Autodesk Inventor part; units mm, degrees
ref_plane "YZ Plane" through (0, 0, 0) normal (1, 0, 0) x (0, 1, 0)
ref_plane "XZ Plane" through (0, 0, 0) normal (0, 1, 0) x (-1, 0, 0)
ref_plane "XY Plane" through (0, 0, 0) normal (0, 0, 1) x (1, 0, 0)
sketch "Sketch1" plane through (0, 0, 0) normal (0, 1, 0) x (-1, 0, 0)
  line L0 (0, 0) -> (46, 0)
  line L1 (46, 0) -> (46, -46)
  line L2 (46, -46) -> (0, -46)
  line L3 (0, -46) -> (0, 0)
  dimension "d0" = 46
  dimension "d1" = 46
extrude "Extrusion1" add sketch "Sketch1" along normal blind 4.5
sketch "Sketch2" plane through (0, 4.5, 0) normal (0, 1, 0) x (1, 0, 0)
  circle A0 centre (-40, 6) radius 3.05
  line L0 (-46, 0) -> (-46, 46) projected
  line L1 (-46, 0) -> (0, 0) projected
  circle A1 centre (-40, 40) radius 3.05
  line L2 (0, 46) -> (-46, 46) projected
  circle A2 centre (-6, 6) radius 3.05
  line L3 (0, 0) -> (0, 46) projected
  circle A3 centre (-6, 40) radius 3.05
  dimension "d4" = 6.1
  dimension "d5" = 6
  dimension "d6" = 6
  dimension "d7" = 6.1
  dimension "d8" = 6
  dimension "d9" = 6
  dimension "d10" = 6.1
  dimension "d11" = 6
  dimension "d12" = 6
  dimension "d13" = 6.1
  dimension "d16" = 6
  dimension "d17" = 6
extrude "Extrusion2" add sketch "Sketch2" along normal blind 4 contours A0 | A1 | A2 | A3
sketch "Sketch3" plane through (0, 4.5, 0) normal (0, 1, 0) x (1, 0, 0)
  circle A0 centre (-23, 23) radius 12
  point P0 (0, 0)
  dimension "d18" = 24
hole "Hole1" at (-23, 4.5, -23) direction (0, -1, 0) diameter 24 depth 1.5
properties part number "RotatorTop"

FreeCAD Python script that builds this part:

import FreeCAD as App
import Part
import Sketcher
from FreeCAD import Vector


def add_polygon(sketch, points):
    """Adds a closed chain of lines whose ends are joined by coincident constraints."""
    first, n = sketch.GeometryCount, len(points)
    for a, b in zip(points, points[1:] + points[:1]):
        sketch.addGeometry(Part.LineSegment(App.Vector(*a, 0), App.Vector(*b, 0)), False)
    for i in range(n):
        sketch.addConstraint(Sketcher.Constraint("Coincident", first + i, 2, first + (i + 1) % n, 1))

doc = App.newDocument("Part")
body = doc.addObject("PartDesign::Body", "Body")

# Sketch on XZ plane
sketch1 = body.newObject("Sketcher::SketchObject", "Sketch")
sketch1.AttachmentSupport = (doc.getObject("XZ_Plane"), [""])
sketch1.MapMode = "FlatFace"
add_polygon(sketch1, [(-46, 0), (0, 0), (0, -46), (-46, -46)])  # lines 0-3
sketch1.addConstraint([
    Sketcher.Constraint("Horizontal", 0),
    Sketcher.Constraint("Vertical", 1),
    Sketcher.Constraint("Horizontal", 2),
    Sketcher.Constraint("Vertical", 3),
    Sketcher.Constraint("Coincident", 0, 2, -1, 1),
    Sketcher.Constraint("Equal", 2, 1),
    Sketcher.Constraint("DistanceX", 0, 1, 0, 2, 46.0),
])
pad1 = body.newObject("PartDesign::Pad", "Pad")
pad1.Profile = sketch1
pad1.Length = 4.5
pad1.Reversed = True

# Sketch on XZ plane
sketch2 = body.newObject("Sketcher::SketchObject", "Sketch001")
sketch2.AttachmentSupport = (doc.getObject("XZ_Plane"), [""])
sketch2.MapMode = "FlatFace"
sketch2.AttachmentOffset = App.Placement(Vector(0, 0, -4.5), App.Rotation())
sketch2.addGeometry([
    Part.Circle(Vector(-40, -6, 0), Vector(0, 0, 1), 3),
    Part.Circle(Vector(-40, -40, 0), Vector(0, 0, 1), 3),
    Part.Circle(Vector(-6, -6, 0), Vector(0, 0, 1), 3),
    Part.Circle(Vector(-6, -40, 0), Vector(0, 0, 1), 3),
], False)
sketch2.addConstraint([
    Sketcher.Constraint("Equal", 0, 1),
    Sketcher.Constraint("Equal", 1, 2),
    Sketcher.Constraint("Equal", 2, 3),
    Sketcher.Constraint("Horizontal", 0, 3, 2, 3),
    Sketcher.Constraint("Horizontal", 1, 3, 3, 3),
    Sketcher.Constraint("Vertical", 0, 3, 1, 3),
    Sketcher.Constraint("Vertical", 2, 3, 3, 3),
    Sketcher.Constraint("Diameter", 0, 6.1),
    Sketcher.Constraint("DistanceY", 0, 3, -1, 1, 6.0),
    Sketcher.Constraint("DistanceX", 2, 3, -1, 1, 6.0),
    Sketcher.Constraint("DistanceX", 0, 3, -1, 1, 40.0),
    Sketcher.Constraint("DistanceY", 1, 3, -1, 1, 40.0),
])
pad2 = body.newObject("PartDesign::Pad", "Pad001")
pad2.Profile = sketch2
pad2.Length = 4
pad2.Reversed = True

# Sketch on XZ plane
sketch3 = body.newObject("Sketcher::SketchObject", "Sketch002")
sketch3.AttachmentSupport = (doc.getObject("XZ_Plane"), [""])
sketch3.MapMode = "FlatFace"
sketch3.AttachmentOffset = App.Placement(Vector(0, 0, -4.5), App.Rotation())
sketch3.addGeometry(Part.Circle(Vector(-23, -23, 0), Vector(0, 0, 1), 12), False)
sketch3.addConstraint([
    Sketcher.Constraint("Diameter", 0, 24.0),
    Sketcher.Constraint("DistanceX", 0, 3, -1, 1, 23.0),
    Sketcher.Constraint("DistanceY", 0, 3, -1, 1, 23.0),
])
doc.recompute()
hole = body.newObject("PartDesign::Hole", "Hole")
hole.Profile = sketch3
hole.ThreadType = "None"
hole.Diameter = 24
hole.DepthType = "Dimension"
hole.Depth = 1.5
hole.DrillPoint = "Flat"
hole.Reversed = True

doc.recompute()
